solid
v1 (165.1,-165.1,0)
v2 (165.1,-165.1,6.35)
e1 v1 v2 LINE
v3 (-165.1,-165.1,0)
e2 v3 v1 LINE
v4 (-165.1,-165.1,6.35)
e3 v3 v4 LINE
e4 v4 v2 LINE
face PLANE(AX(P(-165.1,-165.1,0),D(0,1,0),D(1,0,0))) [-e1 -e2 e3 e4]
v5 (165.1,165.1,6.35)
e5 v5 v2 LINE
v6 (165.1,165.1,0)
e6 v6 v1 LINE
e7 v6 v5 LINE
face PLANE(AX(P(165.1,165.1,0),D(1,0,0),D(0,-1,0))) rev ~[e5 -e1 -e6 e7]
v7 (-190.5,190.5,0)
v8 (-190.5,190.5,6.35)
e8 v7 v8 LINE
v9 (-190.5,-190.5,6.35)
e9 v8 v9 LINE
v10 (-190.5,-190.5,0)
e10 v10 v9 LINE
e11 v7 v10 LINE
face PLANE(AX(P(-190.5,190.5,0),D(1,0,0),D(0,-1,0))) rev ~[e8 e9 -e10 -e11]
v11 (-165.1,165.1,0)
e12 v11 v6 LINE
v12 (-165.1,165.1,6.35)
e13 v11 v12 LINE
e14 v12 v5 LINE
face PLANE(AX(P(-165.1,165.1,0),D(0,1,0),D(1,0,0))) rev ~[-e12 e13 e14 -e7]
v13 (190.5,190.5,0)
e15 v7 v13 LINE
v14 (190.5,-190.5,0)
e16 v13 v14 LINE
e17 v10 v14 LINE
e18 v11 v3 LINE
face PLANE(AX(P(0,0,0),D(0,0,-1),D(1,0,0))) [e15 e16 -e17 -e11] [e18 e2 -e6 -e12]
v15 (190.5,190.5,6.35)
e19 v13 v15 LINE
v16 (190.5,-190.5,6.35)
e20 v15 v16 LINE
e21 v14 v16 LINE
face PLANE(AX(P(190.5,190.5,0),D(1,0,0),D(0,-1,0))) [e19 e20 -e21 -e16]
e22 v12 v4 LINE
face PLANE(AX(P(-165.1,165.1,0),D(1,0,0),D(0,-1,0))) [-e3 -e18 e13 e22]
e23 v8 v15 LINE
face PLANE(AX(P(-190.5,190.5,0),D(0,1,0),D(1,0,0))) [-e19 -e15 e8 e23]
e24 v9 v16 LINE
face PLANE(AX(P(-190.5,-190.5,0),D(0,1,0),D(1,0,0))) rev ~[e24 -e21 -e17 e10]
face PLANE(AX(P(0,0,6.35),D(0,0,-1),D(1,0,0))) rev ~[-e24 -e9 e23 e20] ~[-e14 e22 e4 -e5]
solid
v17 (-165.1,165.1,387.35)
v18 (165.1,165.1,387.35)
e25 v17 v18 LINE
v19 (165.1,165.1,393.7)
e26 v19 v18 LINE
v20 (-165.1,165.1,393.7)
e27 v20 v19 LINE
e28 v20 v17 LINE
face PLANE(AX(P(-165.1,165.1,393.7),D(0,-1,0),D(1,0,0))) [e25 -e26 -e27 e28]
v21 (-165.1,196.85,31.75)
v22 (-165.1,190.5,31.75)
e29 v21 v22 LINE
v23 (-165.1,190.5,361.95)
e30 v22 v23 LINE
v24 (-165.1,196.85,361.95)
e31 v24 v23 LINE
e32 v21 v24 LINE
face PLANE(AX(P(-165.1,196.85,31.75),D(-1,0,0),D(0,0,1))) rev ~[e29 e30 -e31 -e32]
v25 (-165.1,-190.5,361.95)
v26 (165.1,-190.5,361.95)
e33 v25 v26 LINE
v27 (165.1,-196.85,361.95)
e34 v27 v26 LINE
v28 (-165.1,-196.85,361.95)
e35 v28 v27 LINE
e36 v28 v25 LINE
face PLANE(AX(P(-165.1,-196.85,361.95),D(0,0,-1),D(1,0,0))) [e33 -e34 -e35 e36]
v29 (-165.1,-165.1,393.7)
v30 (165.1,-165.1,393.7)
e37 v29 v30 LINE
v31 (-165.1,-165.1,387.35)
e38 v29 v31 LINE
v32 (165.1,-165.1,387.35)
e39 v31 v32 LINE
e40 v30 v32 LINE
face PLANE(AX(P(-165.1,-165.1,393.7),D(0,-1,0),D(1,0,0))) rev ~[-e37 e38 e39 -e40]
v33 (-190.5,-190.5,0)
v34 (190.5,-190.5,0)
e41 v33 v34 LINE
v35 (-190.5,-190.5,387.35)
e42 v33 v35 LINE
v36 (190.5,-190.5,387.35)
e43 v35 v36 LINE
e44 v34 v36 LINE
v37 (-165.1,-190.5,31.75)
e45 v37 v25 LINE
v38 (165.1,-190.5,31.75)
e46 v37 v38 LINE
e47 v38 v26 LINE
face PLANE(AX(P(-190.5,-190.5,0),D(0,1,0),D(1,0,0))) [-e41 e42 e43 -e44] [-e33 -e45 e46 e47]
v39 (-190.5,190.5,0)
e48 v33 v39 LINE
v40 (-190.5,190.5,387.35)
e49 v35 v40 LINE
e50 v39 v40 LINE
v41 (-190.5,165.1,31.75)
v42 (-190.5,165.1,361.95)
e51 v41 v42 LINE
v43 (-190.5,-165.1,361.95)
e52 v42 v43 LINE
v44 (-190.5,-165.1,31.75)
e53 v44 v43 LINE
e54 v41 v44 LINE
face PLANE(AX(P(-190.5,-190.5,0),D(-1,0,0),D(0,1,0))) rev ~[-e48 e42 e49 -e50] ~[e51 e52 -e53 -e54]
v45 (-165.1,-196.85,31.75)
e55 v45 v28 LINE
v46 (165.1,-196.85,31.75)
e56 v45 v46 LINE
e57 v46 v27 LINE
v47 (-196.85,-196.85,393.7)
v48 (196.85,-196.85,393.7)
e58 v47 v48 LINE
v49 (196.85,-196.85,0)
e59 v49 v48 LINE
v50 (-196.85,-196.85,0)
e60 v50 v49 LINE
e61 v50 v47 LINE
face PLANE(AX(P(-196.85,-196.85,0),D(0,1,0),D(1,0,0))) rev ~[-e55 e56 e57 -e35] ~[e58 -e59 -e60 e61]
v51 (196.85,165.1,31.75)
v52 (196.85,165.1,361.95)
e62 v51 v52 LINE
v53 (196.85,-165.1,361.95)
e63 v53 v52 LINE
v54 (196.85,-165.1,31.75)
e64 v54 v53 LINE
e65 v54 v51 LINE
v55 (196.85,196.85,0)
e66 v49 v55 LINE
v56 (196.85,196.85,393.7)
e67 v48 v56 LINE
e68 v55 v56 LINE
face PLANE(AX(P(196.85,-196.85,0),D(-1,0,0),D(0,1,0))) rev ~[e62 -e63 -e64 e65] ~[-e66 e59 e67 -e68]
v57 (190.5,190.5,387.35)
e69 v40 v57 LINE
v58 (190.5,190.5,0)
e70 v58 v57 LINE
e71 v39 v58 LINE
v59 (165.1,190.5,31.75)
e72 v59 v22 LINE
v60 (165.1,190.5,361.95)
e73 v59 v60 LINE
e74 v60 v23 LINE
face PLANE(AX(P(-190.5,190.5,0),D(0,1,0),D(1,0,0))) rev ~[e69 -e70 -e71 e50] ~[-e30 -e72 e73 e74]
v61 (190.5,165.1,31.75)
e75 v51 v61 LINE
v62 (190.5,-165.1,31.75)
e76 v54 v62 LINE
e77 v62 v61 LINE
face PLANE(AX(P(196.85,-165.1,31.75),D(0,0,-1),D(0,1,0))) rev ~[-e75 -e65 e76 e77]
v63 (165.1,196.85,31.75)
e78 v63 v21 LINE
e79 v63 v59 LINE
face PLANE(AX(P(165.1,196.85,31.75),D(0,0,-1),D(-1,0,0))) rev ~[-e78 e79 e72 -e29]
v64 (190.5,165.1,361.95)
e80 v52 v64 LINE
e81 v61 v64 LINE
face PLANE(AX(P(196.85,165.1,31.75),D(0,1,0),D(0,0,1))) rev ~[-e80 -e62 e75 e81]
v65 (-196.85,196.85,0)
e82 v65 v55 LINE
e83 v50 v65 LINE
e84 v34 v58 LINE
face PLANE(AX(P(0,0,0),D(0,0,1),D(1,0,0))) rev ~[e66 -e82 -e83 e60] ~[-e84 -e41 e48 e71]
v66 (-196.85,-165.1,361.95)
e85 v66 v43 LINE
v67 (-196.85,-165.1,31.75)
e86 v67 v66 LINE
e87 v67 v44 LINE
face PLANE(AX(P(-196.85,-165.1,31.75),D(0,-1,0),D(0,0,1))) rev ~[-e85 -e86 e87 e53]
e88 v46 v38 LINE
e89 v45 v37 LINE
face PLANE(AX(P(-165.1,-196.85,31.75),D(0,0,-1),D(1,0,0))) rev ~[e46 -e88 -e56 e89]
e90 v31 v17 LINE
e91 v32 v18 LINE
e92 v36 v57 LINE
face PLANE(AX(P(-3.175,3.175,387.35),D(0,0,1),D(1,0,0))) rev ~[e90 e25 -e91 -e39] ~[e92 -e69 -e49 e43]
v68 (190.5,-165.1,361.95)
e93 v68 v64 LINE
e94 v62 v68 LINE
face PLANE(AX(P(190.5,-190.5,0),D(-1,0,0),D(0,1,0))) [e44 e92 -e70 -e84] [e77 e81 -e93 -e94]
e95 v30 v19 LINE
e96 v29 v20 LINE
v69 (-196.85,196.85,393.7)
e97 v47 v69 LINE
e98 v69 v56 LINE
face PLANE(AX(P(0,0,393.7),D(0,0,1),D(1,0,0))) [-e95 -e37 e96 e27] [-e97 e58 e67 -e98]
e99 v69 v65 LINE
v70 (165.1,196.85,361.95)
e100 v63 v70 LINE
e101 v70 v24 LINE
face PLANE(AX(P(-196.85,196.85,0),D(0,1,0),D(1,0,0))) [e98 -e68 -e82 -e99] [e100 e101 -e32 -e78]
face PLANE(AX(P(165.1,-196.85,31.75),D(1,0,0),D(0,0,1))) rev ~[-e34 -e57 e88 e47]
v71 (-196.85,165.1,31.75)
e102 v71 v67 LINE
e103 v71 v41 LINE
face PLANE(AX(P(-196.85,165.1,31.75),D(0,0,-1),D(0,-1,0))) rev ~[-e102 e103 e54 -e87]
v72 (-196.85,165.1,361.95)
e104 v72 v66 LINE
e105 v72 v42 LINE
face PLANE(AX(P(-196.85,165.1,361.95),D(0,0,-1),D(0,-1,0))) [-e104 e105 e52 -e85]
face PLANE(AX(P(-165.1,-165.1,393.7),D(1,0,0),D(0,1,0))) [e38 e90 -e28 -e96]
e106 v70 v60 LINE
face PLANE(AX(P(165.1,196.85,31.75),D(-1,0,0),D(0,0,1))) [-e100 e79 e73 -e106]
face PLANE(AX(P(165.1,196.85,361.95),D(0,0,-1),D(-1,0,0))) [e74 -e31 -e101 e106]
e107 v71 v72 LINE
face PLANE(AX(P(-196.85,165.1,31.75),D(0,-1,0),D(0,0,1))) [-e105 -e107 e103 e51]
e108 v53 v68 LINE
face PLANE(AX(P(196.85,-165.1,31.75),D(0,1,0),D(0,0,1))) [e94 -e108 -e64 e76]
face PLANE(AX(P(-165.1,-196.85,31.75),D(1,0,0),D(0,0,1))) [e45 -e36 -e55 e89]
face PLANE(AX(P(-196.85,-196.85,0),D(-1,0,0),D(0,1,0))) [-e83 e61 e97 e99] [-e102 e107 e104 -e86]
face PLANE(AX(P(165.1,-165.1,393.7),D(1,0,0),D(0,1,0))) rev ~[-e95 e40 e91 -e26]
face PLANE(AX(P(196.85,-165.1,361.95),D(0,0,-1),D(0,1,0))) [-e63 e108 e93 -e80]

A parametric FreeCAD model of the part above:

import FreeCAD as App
import Part
import Sketcher

V = App.Vector
Q = App.Units.Quantity


def add_polygon(sketch, points):
    """Adds a closed chain of lines whose ends are joined by coincident constraints."""
    first, n = sketch.GeometryCount, len(points)
    for a, b in zip(points, points[1:] + points[:1]):
        sketch.addGeometry(Part.LineSegment(App.Vector(*a, 0), App.Vector(*b, 0)), False)
    for i in range(n):
        sketch.addConstraint(Sketcher.Constraint("Coincident", first + i, 2, first + (i + 1) % n, 1))

doc = App.newDocument("Part")
params = doc.addObject("Spreadsheet::Sheet", "Params")
for row, (alias, value) in enumerate([
    ("sketch1_width", "15 in"),
    ("sketch1_width2", "15.5 in"),
    ("pad1_length", "15.5 in"),
    ("sketch2_width", "13 in"),
    ("pocket1_length", "0.25 in"),
    ("sketch3_width", "13 in"),
    ("pocket2_length", "0.25 in"),
    ("sketch4_width", "13 in"),
    ("pocket3_length", "0.25 in"),
    ("sketch5_width", "13 in"),
    ("pocket4_length", "0.25 in"),
    ("sketch6_width", "15.25 in"),
    ("pad2_length", "0.25 in"),
    ("sketch7_width", "13 in"),
    ("pocket5_length", "0.25 in"),
    ("sketch8_width", "15 in"),
    ("pad3_length", "0.25 in"),
    ("sketch9_width", "13 in"),
    ("pocket6_length", "0.25 in"),
], start=1):
    params.set(f"A{row}", alias)
    params.set(f"B{row}", "=" + value)
    params.setAlias(f"B{row}", alias)

body = doc.addObject("PartDesign::Body", "Body")

sketch1 = doc.addObject("Sketcher::SketchObject", "Sketch")
body.addObject(sketch1)
sketch1.AttachmentSupport = (doc.XY_Plane, [""])
sketch1.MapMode = "FlatFace"
add_polygon(sketch1, [(-196.85, 196.85), (-196.85, -196.85), (196.85, -196.85), (196.85, 196.85)])
add_polygon(sketch1, [(190.5, -190.5), (-190.5, -190.5), (-190.5, 190.5), (190.5, 190.5)])
sketch1.addConstraint([
    Sketcher.Constraint("Vertical", 0),
    Sketcher.Constraint("Horizontal", 1),
    Sketcher.Constraint("Vertical", 2),
    Sketcher.Constraint("Horizontal", 3),
    Sketcher.Constraint("Horizontal", 4),
    Sketcher.Constraint("Vertical", 5),
    Sketcher.Constraint("Horizontal", 6),
    Sketcher.Constraint("Vertical", 7),
    Sketcher.Constraint("Symmetric", 0, 2, 2, 2, -1, 1),
    Sketcher.Constraint("Symmetric", 4, 2, 6, 2, -1, 1),
    Sketcher.Constraint("Equal", 3, 0),
    Sketcher.Constraint("Equal", 6, 5),
    Sketcher.Constraint("DistanceX", 4, 2, 4, 1, Q("15 in")),
    Sketcher.Constraint("DistanceX", 1, 1, 1, 2, Q("15.5 in")),
])
sketch1.setExpression("Constraints[20]", "Params.sketch1_width")
sketch1.setExpression("Constraints[21]", "Params.sketch1_width2")
pad1 = doc.addObject("PartDesign::Pad", "Pad")
body.addObject(pad1)
pad1.Profile = sketch1
pad1.setExpression("Length", "Params.pad1_length")

sketch2 = doc.addObject("Sketcher::SketchObject", "Sketch001")
body.addObject(sketch2)
sketch2.AttachmentSupport = (doc.YZ_Plane, [""])
sketch2.MapMode = "FlatFace"
sketch2.AttachmentOffset = App.Placement(V(0, 0, -7.75 * 25.4), App.Rotation())
add_polygon(sketch2, [(165.1, 361.95), (165.1, 31.75), (-165.1, 31.75), (-165.1, 361.95)])
sketch2.addConstraint([
    Sketcher.Constraint("Vertical", 0),
    Sketcher.Constraint("Horizontal", 1),
    Sketcher.Constraint("Vertical", 2),
    Sketcher.Constraint("Horizontal", 3),
    Sketcher.Constraint("Equal", 3, 0),
    Sketcher.Constraint("DistanceX", 1, 2, 1, 1, Q("13 in")),
    Sketcher.Constraint("DistanceX", -1, 1, 0, 2, Q("6.5 in")),
    Sketcher.Constraint("DistanceY", -1, 1, 0, 2, Q("1.25 in")),
])
sketch2.setExpression("Constraints[9]", "Params.sketch2_width")
pocket1 = doc.addObject("PartDesign::Pocket", "Pocket")
body.addObject(pocket1)
pocket1.Profile = sketch2
pocket1.setExpression("Length", "Params.pocket1_length")
pocket1.Reversed = True

sketch3 = doc.addObject("Sketcher::SketchObject", "Sketch002")
body.addObject(sketch3)
sketch3.AttachmentSupport = (doc.XZ_Plane, [""])
sketch3.MapMode = "FlatFace"
sketch3.AttachmentOffset = App.Placement(V(0, 0, -7.75 * 25.4), App.Rotation())
add_polygon(sketch3, [(165.1, 361.95), (165.1, 31.75), (-165.1, 31.75), (-165.1, 361.95)])
sketch3.addConstraint([
    Sketcher.Constraint("Vertical", 0),
    Sketcher.Constraint("Horizontal", 1),
    Sketcher.Constraint("Vertical", 2),
    Sketcher.Constraint("Horizontal", 3),
    Sketcher.Constraint("Equal", 3, 0),
    Sketcher.Constraint("DistanceX", 1, 2, 1, 1, Q("13 in")),
    Sketcher.Constraint("DistanceX", -1, 1, 0, 2, Q("6.5 in")),
    Sketcher.Constraint("DistanceY", -1, 1, 0, 2, Q("1.25 in")),
])
sketch3.setExpression("Constraints[9]", "Params.sketch3_width")
pocket2 = doc.addObject("PartDesign::Pocket", "Pocket001")
body.addObject(pocket2)
pocket2.Profile = sketch3
pocket2.setExpression("Length", "Params.pocket2_length")
pocket2.Reversed = True

sketch4 = doc.addObject("Sketcher::SketchObject", "Sketch003")
body.addObject(sketch4)
sketch4.AttachmentSupport = (doc.YZ_Plane, [""])
sketch4.MapMode = "FlatFace"
sketch4.AttachmentOffset = App.Placement(V(0, 0, 7.75 * 25.4), App.Rotation())
add_polygon(sketch4, [(-165.1, 361.95), (-165.1, 31.75), (165.1, 31.75), (165.1, 361.95)])
sketch4.addConstraint([
    Sketcher.Constraint("Vertical", 0),
    Sketcher.Constraint("Horizontal", 1),
    Sketcher.Constraint("Vertical", 2),
    Sketcher.Constraint("Horizontal", 3),
    Sketcher.Constraint("Equal", 3, 0),
    Sketcher.Constraint("DistanceX", 1, 1, 1, 2, Q("13 in")),
    Sketcher.Constraint("DistanceX", 0, 2, -1, 1, Q("6.5 in")),
    Sketcher.Constraint("DistanceY", -1, 1, 0, 2, Q("1.25 in")),
])
sketch4.setExpression("Constraints[9]", "Params.sketch4_width")
pocket3 = doc.addObject("PartDesign::Pocket", "Pocket002")
body.addObject(pocket3)
pocket3.Profile = sketch4
pocket3.setExpression("Length", "Params.pocket3_length")

sketch5 = doc.addObject("Sketcher::SketchObject", "Sketch004")
body.addObject(sketch5)
sketch5.AttachmentSupport = (doc.XZ_Plane, [""])
sketch5.MapMode = "FlatFace"
sketch5.AttachmentOffset = App.Placement(V(0, 0, 7.75 * 25.4), App.Rotation())
add_polygon(sketch5, [(-165.1, 361.95), (-165.1, 31.75), (165.1, 31.75), (165.1, 361.95)])
sketch5.addConstraint([
    Sketcher.Constraint("Vertical", 0),
    Sketcher.Constraint("Horizontal", 1),
    Sketcher.Constraint("Vertical", 2),
    Sketcher.Constraint("Horizontal", 3),
    Sketcher.Constraint("Equal", 3, 0),
    Sketcher.Constraint("DistanceX", 1, 1, 1, 2, Q("13 in")),
    Sketcher.Constraint("DistanceX", 0, 2, -1, 1, Q("6.5 in")),
    Sketcher.Constraint("DistanceY", -1, 1, 0, 2, Q("1.25 in")),
])
sketch5.setExpression("Constraints[9]", "Params.sketch5_width")
pocket4 = doc.addObject("PartDesign::Pocket", "Pocket003")
body.addObject(pocket4)
pocket4.Profile = sketch5
pocket4.setExpression("Length", "Params.pocket4_length")

sketch6 = doc.addObject("Sketcher::SketchObject", "Sketch005")
body.addObject(sketch6)
sketch6.AttachmentSupport = (doc.XY_Plane, [""])
sketch6.MapMode = "FlatFace"
sketch6.AttachmentOffset = App.Placement(V(0, 0, 15.5 * 25.4), App.Rotation())
add_polygon(sketch6, [(-196.85, 196.85), (-196.85, -190.5), (190.5, -190.5), (190.5, 196.85)])
sketch6.addConstraint([
    Sketcher.Constraint("Vertical", 0),
    Sketcher.Constraint("Horizontal", 1),
    Sketcher.Constraint("Vertical", 2),
    Sketcher.Constraint("Horizontal", 3),
    Sketcher.Constraint("Equal", 3, 0),
    Sketcher.Constraint("DistanceX", 1, 1, 1, 2, Q("15.25 in")),
    Sketcher.Constraint("DistanceY", 0, 2, -1, 1, Q("7.5 in")),
    Sketcher.Constraint("DistanceX", -1, 1, 1, 2, Q("7.5 in")),
])
sketch6.setExpression("Constraints[9]", "Params.sketch6_width")
pad2 = doc.addObject("PartDesign::Pad", "Pad001")
body.addObject(pad2)
pad2.Profile = sketch6
pad2.setExpression("Length", "Params.pad2_length")
pad2.Reversed = True

sketch7 = doc.addObject("Sketcher::SketchObject", "Sketch006")
body.addObject(sketch7)
sketch7.AttachmentSupport = (doc.XY_Plane, [""])
sketch7.MapMode = "FlatFace"
sketch7.AttachmentOffset = App.Placement(V(0, 0, 15.5 * 25.4), App.Rotation())
add_polygon(sketch7, [(-165.1, 165.1), (-165.1, -165.1), (165.1, -165.1), (165.1, 165.1)])
sketch7.addConstraint([
    Sketcher.Constraint("Vertical", 0),
    Sketcher.Constraint("Horizontal", 1),
    Sketcher.Constraint("Vertical", 2),
    Sketcher.Constraint("Horizontal", 3),
    Sketcher.Constraint("Symmetric", 0, 2, 2, 2, -1, 1),
    Sketcher.Constraint("Equal", 3, 0),
    Sketcher.Constraint("DistanceX", 1, 1, 1, 2, Q("13 in")),
])
sketch7.setExpression("Constraints[10]", "Params.sketch7_width")
pocket5 = doc.addObject("PartDesign::Pocket", "Pocket004")
body.addObject(pocket5)
pocket5.Profile = sketch7
pocket5.setExpression("Length", "Params.pocket5_length")
body2 = doc.addObject("PartDesign::Body", "Body001")

sketch8 = doc.addObject("Sketcher::SketchObject", "Sketch007")
body2.addObject(sketch8)
sketch8.AttachmentSupport = (doc.getObject("XY_Plane001"), [""])
sketch8.MapMode = "FlatFace"
add_polygon(sketch8, [(-190.5, -190.5), (-190.5, 190.5), (190.5, 190.5), (190.5, -190.5)])
sketch8.addConstraint([
    Sketcher.Constraint("Vertical", 0),
    Sketcher.Constraint("Horizontal", 1),
    Sketcher.Constraint("Vertical", 2),
    Sketcher.Constraint("Horizontal", 3),
    Sketcher.Constraint("Symmetric", 0, 2, 2, 2, -1, 1),
    Sketcher.Constraint("Equal", 3, 0),
    Sketcher.Constraint("DistanceX", 1, 1, 1, 2, Q("15 in")),
])
sketch8.setExpression("Constraints[10]", "Params.sketch8_width")
pad3 = doc.addObject("PartDesign::Pad", "Pad002")
body2.addObject(pad3)
pad3.Profile = sketch8
pad3.setExpression("Length", "Params.pad3_length")

sketch9 = doc.addObject("Sketcher::SketchObject", "Sketch008")
body2.addObject(sketch9)
sketch9.AttachmentSupport = (doc.getObject("XY_Plane001"), [""])
sketch9.MapMode = "FlatFace"
add_polygon(sketch9, [(-165.1, -165.1), (-165.1, 165.1), (165.1, 165.1), (165.1, -165.1)])
sketch9.addConstraint([
    Sketcher.Constraint("Vertical", 0),
    Sketcher.Constraint("Horizontal", 1),
    Sketcher.Constraint("Vertical", 2),
    Sketcher.Constraint("Horizontal", 3),
    Sketcher.Constraint("Symmetric", 0, 2, 2, 2, -1, 1),
    Sketcher.Constraint("Equal", 3, 0),
    Sketcher.Constraint("DistanceX", 1, 1, 1, 2, Q("13 in")),
])
sketch9.setExpression("Constraints[10]", "Params.sketch9_width")
pocket6 = doc.addObject("PartDesign::Pocket", "Pocket005")
body2.addObject(pocket6)
pocket6.Profile = sketch9
pocket6.setExpression("Length", "Params.pocket6_length")
pocket6.Reversed = True

doc.recompute()
